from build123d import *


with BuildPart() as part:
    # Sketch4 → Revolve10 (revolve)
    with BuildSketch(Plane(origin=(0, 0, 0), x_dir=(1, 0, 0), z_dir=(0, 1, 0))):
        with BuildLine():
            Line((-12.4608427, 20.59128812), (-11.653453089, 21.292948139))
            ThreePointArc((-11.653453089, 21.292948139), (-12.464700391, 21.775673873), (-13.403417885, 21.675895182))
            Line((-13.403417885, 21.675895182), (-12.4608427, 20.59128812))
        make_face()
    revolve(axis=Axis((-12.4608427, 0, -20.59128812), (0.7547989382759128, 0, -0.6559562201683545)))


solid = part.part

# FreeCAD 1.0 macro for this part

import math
import FreeCAD as App
import Part
import Sketcher
from FreeCAD import Vector

doc = App.newDocument("Part")
params = doc.addObject("Spreadsheet::Sheet", "Params")
for row, (alias, value) in enumerate([
    ("revolution_angle", "360 deg"),
], start=1):
    params.set(f"A{row}", alias)
    params.set(f"B{row}", "=" + value)
    params.setAlias(f"B{row}", alias)

body = doc.addObject("PartDesign::Body", "Body")

# Sketch on XZ plane
sketch1 = body.newObject("Sketcher::SketchObject", "Sketch")
sketch1.AttachmentSupport = (doc.getObject("XZ_Plane"), [""])
sketch1.MapMode = "FlatFace"
sketch1.addGeometry([
    Part.LineSegment(Vector(-12.5, -20.6, 0), Vector(-11.7, -21.3, 0)),
    Part.ArcOfCircle(Part.Circle(Vector(-12.8, -20.3, 0), Vector(0, 0, 1), 1.5), math.radians(-114), math.radians(-41)),
    Part.LineSegment(Vector(-13.4, -21.7, 0), Vector(-12.5, -20.6, 0)),
], False)
sketch1.addGeometry(Part.LineSegment(Vector(-12.8, -20.3, 0), Vector(-11.7, -21.3, 0)), True)  # axis
sketch1.addConstraint([
    Sketcher.Constraint("Coincident", 0, 2, 1, 2),
    Sketcher.Constraint("Coincident", 1, 1, 2, 1),
    Sketcher.Constraint("Coincident", 2, 2, 0, 1),
    Sketcher.Constraint("Coincident", 3, 2, 0, 2),
    Sketcher.Constraint("Perpendicular", 0, 2),
    Sketcher.Constraint("Perpendicular", 2, 3),
    Sketcher.Constraint("Radius", 1, 1.494488),
    Sketcher.Constraint("DistanceY", 1, 3, 3, 1, 0.0031),
    Sketcher.Constraint("Distance", 2, 1.436948),
    Sketcher.Constraint("DistanceX", 1, 3, -1, 1, 12.784181),
    Sketcher.Constraint("DistanceY", 0, 2, -1, 1, 21.292948),
    Sketcher.Constraint("DistanceY", 2, 2, -1, 1, 20.591288),
    Sketcher.Constraint("DistanceX", 1, 3, 0, 2, 1.130728),
])
revolution = body.newObject("PartDesign::Revolution", "Revolution")
revolution.Profile = sketch1
revolution.ReferenceAxis = (sketch1, ["Axis0"])
revolution.setExpression("Angle", "Params.revolution_angle")

doc.recompute()
